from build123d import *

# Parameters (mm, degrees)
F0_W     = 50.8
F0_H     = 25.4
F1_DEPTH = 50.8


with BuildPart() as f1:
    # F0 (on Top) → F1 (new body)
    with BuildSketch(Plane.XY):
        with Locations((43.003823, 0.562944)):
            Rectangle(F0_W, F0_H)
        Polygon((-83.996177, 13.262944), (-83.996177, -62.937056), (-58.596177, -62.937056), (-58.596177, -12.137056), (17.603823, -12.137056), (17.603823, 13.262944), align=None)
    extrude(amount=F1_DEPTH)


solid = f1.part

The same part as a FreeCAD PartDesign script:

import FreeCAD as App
import Part
import Sketcher
Q = App.Units.Quantity


def add_polygon(sketch, points):
    """Adds a closed chain of lines whose ends are joined by coincident constraints."""
    first, n = sketch.GeometryCount, len(points)
    for a, b in zip(points, points[1:] + points[:1]):
        sketch.addGeometry(Part.LineSegment(App.Vector(*a, 0), App.Vector(*b, 0)), False)
    for i in range(n):
        sketch.addConstraint(Sketcher.Constraint("Coincident", first + i, 2, first + (i + 1) % n, 1))

doc = App.newDocument("Part")
body = doc.addObject("PartDesign::Body", "Body")

sketch1 = body.newObject("Sketcher::SketchObject", "Sketch")
sketch1.AttachmentSupport = (doc.getObject("XY_Plane"), [""])
sketch1.MapMode = "FlatFace"
add_polygon(sketch1, [(68, -12), (68, 13), (-84, 13), (-84, -63), (-59, -63), (-59, -12)])
sketch1.addConstraint(Sketcher.Constraint("Vertical", 0))
sketch1.addConstraint(Sketcher.Constraint("Horizontal", 1))
sketch1.addConstraint(Sketcher.Constraint("Vertical", 2))
sketch1.addConstraint(Sketcher.Constraint("Horizontal", 3))
sketch1.addConstraint(Sketcher.Constraint("Vertical", 4))
sketch1.addConstraint(Sketcher.Constraint("Horizontal", 5))
sketch1.addConstraint(Sketcher.Constraint("Equal", 3, 0))
sketch1.addConstraint(Sketcher.Constraint("DistanceX", 1, 2, 1, 1, Q("6 in")))
sketch1.addConstraint(Sketcher.Constraint("DistanceX", 3, 1, 3, 2, Q("1 in")))
sketch1.addConstraint(Sketcher.Constraint("DistanceY", 2, 2, 2, 1, Q("3 in")))
sketch1.addConstraint(Sketcher.Constraint("DistanceX", -1, 1, 0, 2, Q("68.403823 mm")))
sketch1.addConstraint(Sketcher.Constraint("DistanceY", -1, 1, 0, 2, Q("13.262944 mm")))
pad1 = body.newObject("PartDesign::Pad", "Pad")
pad1.Profile = sketch1
pad1.Length = Q("2 in")

doc.recompute()
